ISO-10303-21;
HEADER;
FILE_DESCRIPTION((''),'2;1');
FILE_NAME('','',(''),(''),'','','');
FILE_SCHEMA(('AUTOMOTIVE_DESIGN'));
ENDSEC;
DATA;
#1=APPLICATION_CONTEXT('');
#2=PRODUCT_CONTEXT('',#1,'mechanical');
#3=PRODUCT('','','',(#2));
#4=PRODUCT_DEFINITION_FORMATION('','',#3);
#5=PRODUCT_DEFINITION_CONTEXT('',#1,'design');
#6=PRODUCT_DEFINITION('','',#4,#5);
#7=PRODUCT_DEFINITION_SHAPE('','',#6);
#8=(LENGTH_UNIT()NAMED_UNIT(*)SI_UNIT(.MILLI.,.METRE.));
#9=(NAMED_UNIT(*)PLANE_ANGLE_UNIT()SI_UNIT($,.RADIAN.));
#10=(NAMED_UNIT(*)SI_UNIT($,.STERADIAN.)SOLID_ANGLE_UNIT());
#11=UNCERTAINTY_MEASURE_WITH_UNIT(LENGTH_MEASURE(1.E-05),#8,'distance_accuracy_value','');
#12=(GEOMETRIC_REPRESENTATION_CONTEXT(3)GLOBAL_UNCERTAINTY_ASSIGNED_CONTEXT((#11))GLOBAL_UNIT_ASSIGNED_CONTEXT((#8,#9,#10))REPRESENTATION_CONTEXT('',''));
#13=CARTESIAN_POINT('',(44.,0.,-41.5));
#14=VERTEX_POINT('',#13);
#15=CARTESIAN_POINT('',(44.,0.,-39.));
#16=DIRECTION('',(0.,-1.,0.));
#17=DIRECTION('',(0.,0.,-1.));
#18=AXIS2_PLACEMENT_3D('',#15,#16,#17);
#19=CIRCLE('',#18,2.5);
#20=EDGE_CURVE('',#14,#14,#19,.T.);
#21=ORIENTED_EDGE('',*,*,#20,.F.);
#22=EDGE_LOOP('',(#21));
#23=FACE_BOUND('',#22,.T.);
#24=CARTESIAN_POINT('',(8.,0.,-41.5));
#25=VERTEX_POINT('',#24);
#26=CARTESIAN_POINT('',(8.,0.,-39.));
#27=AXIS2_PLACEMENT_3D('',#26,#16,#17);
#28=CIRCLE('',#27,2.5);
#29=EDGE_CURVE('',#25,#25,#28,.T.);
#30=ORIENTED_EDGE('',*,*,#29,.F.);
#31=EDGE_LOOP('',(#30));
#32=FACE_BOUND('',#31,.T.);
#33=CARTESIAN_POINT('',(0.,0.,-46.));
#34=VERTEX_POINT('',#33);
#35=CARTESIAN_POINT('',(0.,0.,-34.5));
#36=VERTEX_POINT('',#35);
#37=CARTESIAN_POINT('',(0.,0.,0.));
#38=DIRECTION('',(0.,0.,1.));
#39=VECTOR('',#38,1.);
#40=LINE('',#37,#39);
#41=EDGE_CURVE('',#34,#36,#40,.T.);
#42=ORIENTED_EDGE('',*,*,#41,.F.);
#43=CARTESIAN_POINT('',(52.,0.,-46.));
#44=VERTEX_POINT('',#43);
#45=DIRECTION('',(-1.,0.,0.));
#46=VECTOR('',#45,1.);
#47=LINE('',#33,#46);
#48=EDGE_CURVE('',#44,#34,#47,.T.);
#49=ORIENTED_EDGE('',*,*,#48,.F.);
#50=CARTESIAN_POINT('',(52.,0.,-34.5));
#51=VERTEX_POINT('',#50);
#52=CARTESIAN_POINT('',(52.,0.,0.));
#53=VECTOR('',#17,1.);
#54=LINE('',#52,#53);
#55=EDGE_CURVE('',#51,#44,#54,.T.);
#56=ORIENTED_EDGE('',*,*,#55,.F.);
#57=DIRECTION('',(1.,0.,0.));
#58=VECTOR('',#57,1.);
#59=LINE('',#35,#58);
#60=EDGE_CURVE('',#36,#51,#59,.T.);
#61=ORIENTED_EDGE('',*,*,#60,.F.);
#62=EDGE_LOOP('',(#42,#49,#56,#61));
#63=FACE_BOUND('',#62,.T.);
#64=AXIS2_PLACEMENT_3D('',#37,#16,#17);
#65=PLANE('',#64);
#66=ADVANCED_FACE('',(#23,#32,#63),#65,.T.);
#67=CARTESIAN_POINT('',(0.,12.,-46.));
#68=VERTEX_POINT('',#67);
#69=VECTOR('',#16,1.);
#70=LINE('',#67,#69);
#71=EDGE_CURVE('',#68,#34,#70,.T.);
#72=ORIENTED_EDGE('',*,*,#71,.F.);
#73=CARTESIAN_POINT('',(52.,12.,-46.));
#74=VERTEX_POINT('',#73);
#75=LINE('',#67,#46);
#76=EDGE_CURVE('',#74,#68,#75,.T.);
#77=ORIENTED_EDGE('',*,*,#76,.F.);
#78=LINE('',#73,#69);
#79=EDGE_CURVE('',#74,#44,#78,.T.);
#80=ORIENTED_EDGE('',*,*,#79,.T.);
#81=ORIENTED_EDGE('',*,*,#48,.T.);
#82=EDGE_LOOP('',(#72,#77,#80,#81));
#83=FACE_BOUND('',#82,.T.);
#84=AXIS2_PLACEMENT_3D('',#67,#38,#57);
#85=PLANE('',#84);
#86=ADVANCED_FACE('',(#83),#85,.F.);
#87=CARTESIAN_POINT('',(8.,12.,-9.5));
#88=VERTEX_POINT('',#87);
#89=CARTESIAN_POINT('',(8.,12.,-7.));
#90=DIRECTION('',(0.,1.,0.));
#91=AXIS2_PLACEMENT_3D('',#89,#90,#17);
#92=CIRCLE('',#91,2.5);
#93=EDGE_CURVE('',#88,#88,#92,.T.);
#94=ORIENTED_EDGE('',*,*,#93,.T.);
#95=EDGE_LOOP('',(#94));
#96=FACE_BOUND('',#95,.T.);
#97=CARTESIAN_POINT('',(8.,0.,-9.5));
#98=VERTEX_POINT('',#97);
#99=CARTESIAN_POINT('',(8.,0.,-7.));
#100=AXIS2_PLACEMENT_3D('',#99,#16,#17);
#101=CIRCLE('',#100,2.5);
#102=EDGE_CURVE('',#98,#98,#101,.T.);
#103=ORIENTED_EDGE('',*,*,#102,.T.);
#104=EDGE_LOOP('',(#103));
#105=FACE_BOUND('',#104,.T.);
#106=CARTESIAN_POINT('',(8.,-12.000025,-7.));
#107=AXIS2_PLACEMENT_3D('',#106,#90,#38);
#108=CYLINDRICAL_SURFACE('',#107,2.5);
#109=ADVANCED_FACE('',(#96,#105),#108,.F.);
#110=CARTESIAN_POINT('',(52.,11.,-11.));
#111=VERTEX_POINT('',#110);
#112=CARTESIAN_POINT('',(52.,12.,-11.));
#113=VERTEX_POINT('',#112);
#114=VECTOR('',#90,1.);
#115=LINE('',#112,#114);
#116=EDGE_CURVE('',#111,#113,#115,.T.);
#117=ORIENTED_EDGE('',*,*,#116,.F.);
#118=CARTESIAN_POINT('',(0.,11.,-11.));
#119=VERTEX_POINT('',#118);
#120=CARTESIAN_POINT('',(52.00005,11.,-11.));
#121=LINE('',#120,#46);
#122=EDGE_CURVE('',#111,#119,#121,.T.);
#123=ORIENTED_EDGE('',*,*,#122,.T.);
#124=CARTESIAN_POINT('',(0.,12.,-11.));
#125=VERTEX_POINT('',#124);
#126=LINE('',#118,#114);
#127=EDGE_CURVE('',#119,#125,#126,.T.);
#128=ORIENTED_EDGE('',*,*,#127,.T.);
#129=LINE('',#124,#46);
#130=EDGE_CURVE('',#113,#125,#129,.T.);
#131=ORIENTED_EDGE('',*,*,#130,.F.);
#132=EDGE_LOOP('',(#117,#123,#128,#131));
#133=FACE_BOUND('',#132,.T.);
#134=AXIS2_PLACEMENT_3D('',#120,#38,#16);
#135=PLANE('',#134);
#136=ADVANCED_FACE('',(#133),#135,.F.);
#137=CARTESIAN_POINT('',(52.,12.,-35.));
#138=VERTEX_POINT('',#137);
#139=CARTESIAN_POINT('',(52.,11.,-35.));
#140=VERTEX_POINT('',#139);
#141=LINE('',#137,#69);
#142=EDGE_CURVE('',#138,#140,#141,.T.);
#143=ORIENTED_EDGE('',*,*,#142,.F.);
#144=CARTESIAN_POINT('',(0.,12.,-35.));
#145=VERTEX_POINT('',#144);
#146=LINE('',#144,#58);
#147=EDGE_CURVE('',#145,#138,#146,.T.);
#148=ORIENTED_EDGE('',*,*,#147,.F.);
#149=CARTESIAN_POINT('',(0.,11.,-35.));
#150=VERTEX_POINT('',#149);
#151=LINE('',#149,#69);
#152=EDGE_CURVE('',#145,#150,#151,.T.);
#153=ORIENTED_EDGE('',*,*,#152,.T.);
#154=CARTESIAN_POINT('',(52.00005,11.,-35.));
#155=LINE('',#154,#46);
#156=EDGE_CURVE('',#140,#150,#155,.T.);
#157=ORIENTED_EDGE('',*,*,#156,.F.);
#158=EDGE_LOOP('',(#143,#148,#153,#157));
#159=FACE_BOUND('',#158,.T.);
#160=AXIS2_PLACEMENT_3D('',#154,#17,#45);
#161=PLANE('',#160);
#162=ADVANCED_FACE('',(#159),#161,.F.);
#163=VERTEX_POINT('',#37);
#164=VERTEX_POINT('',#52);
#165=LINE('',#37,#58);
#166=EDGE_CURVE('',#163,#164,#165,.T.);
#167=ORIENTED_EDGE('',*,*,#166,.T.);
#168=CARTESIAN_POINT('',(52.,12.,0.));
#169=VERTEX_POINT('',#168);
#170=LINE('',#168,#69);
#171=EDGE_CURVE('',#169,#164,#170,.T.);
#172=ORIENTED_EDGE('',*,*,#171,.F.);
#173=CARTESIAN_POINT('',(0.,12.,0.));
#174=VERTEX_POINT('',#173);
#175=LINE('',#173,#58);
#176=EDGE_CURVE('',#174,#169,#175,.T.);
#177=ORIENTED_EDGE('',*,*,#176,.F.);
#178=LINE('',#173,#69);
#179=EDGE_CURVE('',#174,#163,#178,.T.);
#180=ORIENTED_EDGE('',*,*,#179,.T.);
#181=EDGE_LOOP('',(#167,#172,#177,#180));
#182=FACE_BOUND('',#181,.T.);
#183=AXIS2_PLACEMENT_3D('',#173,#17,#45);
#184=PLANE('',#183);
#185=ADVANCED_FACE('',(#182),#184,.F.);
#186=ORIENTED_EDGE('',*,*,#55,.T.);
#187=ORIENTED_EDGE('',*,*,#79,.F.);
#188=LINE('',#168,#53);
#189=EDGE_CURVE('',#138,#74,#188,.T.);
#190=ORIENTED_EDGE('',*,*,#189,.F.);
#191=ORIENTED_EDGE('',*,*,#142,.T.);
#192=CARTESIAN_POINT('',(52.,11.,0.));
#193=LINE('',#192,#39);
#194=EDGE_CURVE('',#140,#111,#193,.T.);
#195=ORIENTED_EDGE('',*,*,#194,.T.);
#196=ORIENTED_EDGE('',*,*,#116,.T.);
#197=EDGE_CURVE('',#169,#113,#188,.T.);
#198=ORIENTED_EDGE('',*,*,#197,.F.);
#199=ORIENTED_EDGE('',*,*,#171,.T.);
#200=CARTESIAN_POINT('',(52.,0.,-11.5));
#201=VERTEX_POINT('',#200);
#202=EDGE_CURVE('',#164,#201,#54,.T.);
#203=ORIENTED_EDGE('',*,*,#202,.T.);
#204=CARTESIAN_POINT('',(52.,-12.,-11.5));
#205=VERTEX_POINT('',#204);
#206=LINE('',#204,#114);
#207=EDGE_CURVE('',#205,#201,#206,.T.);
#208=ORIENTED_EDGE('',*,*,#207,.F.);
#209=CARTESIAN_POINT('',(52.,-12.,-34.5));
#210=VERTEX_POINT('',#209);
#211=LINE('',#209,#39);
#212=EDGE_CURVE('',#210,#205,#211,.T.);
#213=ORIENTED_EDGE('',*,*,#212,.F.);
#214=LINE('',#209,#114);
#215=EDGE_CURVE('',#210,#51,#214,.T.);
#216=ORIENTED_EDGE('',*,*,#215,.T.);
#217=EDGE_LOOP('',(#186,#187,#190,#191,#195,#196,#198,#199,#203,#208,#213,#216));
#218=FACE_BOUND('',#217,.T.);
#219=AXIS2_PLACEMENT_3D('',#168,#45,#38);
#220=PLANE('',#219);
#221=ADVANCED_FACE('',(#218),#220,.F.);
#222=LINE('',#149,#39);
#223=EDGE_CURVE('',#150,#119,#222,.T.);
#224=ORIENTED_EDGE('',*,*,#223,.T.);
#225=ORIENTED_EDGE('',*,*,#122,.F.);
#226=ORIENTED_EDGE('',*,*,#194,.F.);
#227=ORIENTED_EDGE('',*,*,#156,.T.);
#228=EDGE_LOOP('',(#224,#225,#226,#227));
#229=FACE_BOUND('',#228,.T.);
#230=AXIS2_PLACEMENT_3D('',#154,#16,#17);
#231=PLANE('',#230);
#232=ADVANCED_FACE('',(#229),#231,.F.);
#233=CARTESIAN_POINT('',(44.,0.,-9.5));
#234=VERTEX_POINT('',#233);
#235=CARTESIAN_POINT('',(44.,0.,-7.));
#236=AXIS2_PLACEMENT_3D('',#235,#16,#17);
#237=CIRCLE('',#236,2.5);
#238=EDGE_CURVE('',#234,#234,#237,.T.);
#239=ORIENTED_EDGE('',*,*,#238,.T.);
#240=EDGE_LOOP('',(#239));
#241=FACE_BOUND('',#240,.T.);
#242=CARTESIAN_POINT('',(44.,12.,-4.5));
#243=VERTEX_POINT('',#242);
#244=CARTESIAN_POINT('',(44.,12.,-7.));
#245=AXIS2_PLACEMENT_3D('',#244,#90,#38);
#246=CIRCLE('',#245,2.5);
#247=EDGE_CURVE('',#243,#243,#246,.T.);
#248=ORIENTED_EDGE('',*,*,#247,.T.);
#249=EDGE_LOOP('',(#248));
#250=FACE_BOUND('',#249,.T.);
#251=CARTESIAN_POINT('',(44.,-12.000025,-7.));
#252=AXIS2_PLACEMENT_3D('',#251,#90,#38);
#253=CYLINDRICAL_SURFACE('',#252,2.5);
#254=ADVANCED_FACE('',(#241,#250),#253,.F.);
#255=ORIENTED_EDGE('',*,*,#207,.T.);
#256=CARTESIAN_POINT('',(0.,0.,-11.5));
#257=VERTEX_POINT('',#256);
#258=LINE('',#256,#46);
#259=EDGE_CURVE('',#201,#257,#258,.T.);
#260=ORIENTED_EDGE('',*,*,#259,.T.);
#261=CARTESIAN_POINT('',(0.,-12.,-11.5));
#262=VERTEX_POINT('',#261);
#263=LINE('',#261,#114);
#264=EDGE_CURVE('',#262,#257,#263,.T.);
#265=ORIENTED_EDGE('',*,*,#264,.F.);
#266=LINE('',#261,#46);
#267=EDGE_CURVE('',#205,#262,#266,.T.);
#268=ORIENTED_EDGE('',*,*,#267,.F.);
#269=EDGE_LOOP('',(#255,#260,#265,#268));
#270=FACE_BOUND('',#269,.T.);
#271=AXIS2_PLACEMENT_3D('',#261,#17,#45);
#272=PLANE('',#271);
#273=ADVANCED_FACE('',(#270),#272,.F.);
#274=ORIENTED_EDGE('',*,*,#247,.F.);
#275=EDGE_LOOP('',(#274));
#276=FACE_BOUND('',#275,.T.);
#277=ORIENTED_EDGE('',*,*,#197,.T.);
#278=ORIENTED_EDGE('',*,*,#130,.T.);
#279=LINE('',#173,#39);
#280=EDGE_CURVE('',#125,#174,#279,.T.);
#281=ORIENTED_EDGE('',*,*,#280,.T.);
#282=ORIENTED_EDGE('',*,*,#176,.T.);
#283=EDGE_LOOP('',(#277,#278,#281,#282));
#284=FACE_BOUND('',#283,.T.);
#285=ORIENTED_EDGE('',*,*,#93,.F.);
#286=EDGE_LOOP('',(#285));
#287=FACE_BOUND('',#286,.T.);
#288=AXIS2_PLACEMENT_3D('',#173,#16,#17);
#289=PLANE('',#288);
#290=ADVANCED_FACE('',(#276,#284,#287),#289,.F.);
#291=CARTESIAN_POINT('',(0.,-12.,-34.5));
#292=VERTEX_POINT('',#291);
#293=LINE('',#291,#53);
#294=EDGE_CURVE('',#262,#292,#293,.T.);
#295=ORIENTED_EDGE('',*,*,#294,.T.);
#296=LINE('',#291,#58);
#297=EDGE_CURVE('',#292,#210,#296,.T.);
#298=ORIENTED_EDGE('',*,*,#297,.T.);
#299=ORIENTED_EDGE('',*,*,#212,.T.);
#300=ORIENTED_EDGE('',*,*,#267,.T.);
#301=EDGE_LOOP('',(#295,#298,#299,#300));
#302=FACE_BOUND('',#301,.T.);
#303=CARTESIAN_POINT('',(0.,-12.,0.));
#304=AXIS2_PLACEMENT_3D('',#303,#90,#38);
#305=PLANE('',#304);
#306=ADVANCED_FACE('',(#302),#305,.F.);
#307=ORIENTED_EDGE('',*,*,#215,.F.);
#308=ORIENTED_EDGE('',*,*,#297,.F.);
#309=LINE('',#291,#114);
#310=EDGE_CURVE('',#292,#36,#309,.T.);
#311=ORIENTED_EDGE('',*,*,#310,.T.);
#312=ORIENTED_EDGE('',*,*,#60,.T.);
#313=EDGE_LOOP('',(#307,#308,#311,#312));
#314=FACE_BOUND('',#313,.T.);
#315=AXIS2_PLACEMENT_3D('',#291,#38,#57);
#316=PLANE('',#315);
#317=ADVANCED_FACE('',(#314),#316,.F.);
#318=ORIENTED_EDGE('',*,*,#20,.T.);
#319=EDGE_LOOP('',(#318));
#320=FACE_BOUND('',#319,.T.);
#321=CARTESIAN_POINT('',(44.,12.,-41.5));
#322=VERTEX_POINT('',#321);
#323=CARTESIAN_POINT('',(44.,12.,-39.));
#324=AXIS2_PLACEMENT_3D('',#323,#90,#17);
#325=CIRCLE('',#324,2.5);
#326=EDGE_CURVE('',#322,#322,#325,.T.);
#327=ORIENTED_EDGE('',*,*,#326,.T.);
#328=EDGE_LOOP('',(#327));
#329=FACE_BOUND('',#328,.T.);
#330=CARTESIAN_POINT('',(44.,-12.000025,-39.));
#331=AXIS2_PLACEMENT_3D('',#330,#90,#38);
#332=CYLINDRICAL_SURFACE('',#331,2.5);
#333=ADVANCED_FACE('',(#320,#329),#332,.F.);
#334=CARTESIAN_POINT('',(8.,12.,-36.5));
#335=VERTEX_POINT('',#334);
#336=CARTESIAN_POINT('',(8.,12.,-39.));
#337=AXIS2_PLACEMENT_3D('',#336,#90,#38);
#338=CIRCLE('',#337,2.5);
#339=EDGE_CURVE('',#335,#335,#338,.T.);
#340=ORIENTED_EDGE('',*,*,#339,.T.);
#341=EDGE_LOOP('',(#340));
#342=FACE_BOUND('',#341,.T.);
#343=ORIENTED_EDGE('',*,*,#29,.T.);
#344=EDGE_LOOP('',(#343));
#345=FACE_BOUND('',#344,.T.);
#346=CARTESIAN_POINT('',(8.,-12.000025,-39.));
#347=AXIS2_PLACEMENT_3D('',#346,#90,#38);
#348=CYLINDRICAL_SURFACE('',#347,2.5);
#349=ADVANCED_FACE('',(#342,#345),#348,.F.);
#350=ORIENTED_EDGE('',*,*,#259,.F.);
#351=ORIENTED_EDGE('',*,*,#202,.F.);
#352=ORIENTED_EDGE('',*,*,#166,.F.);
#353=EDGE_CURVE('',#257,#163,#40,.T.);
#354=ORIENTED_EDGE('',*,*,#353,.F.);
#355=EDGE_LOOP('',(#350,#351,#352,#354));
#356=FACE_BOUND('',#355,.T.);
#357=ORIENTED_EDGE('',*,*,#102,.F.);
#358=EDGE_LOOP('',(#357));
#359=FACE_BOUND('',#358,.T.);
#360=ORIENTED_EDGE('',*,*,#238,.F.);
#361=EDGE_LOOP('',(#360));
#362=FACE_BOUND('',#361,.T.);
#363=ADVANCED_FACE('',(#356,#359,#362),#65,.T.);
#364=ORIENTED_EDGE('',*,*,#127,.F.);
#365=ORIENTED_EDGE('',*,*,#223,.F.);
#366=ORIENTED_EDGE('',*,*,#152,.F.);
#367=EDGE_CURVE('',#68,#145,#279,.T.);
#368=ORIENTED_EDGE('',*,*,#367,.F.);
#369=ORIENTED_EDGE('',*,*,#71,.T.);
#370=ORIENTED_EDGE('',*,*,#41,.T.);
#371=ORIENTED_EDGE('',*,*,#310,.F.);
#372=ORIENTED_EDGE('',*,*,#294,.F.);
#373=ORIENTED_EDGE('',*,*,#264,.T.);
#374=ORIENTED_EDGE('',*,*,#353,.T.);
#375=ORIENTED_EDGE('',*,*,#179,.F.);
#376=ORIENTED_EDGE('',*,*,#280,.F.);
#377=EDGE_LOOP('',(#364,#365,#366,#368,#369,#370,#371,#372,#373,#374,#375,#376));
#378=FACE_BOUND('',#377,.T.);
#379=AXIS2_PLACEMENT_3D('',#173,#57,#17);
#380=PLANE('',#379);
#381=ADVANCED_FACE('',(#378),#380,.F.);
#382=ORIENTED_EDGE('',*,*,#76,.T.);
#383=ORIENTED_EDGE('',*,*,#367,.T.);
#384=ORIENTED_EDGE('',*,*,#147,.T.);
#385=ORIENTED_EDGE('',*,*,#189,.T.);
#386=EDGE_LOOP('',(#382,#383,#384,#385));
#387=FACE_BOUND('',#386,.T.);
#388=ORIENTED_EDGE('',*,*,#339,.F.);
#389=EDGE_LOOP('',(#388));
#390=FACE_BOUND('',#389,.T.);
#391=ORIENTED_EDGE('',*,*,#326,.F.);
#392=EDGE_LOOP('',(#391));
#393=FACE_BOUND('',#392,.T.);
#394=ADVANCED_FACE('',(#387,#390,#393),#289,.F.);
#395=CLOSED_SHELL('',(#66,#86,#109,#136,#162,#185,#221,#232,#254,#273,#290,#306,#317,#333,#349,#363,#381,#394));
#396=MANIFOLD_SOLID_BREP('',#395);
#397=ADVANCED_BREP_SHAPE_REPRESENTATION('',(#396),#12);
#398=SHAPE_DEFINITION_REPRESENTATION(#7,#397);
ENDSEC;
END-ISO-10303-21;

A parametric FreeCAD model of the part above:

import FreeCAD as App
import Part
import Sketcher
from FreeCAD import Vector
Q = App.Units.Quantity

doc = App.newDocument("Part")
body = doc.addObject("PartDesign::Body", "Body")

# Sketch on XZ plane
sketch1 = body.newObject("Sketcher::SketchObject", "Sketch")
sketch1.AttachmentSupport = (doc.getObject("XZ_Plane"), [""])
sketch1.MapMode = "FlatFace"
sketch1.addGeometry(Part.LineSegment(Vector(0, -46, 0), Vector(0, 0, 0)), False)
sketch1.addGeometry(Part.LineSegment(Vector(0, 0, 0), Vector(52, 0, 0)), False)
sketch1.addGeometry(Part.LineSegment(Vector(52, 0, 0), Vector(52, -46, 0)), False)
sketch1.addGeometry(Part.LineSegment(Vector(52, -46, 0), Vector(0, -46, 0)), False)
sketch1.addConstraint(Sketcher.Constraint("Coincident", 0, 2, 1, 1))
sketch1.addConstraint(Sketcher.Constraint("Coincident", 1, 2, 2, 1))
sketch1.addConstraint(Sketcher.Constraint("Coincident", 2, 2, 3, 1))
sketch1.addConstraint(Sketcher.Constraint("Coincident", 3, 2, 0, 1))
sketch1.addConstraint(Sketcher.Constraint("Vertical", 0))
sketch1.addConstraint(Sketcher.Constraint("Horizontal", 1))
sketch1.addConstraint(Sketcher.Constraint("Vertical", 2))
sketch1.addConstraint(Sketcher.Constraint("Horizontal", 3))
sketch1.addConstraint(Sketcher.Constraint("Coincident", 0, 2, -1, 1))
sketch1.addConstraint(Sketcher.Constraint("DistanceX", 1, 1, 1, 2, Q("52 mm")))
sketch1.addConstraint(Sketcher.Constraint("DistanceY", 0, 1, 0, 2, Q("46 mm")))
pad1 = body.newObject("PartDesign::Pad", "Pad")
pad1.Profile = sketch1
pad1.Length = 12
pad1.Reversed = True

# Sketch on XZ plane
sketch2 = body.newObject("Sketcher::SketchObject", "Sketch001")
sketch2.AttachmentSupport = (doc.getObject("XZ_Plane"), [""])
sketch2.MapMode = "FlatFace"
sketch2.addGeometry(Part.LineSegment(Vector(0, -12, 0), Vector(0, -34, 0)), False)
sketch2.addGeometry(Part.LineSegment(Vector(0, -34, 0), Vector(52, -34, 0)), False)
sketch2.addGeometry(Part.LineSegment(Vector(52, -34, 0), Vector(52, -12, 0)), False)
sketch2.addGeometry(Part.LineSegment(Vector(52, -12, 0), Vector(0, -12, 0)), False)
sketch2.addConstraint(Sketcher.Constraint("Coincident", 0, 2, 1, 1))
sketch2.addConstraint(Sketcher.Constraint("Coincident", 1, 2, 2, 1))
sketch2.addConstraint(Sketcher.Constraint("Coincident", 2, 2, 3, 1))
sketch2.addConstraint(Sketcher.Constraint("Coincident", 3, 2, 0, 1))
sketch2.addConstraint(Sketcher.Constraint("Vertical", 0))
sketch2.addConstraint(Sketcher.Constraint("Horizontal", 1))
sketch2.addConstraint(Sketcher.Constraint("Vertical", 2))
sketch2.addConstraint(Sketcher.Constraint("Horizontal", 3))
sketch2.addConstraint(Sketcher.Constraint("PointOnObject", 0, 2, -2))
sketch2.addConstraint(Sketcher.Constraint("DistanceX", 1, 1, 1, 2, Q("52 mm")))
sketch2.addConstraint(Sketcher.Constraint("DistanceY", 0, 2, 0, 1, Q("23 mm")))
sketch2.addConstraint(Sketcher.Constraint("DistanceY", 0, 2, -1, 1, Q("34.5 mm")))
pad2 = body.newObject("PartDesign::Pad", "Pad001")
pad2.Profile = sketch2
pad2.Length = 12

# Sketch on XZ plane
sketch3 = body.newObject("Sketcher::SketchObject", "Sketch002")
sketch3.AttachmentSupport = (doc.getObject("XZ_Plane"), [""])
sketch3.MapMode = "FlatFace"
sketch3.AttachmentOffset = App.Placement(Vector(0, 0, -12), App.Rotation())
sketch3.addGeometry(Part.Circle(Vector(8, -39, 0), Vector(0, 0, 1), 2.5), False)
sketch3.addGeometry(Part.Circle(Vector(8, -7, 0), Vector(0, 0, 1), 2.5), False)
sketch3.addGeometry(Part.Circle(Vector(44, -7, 0), Vector(0, 0, 1), 2.5), False)
sketch3.addGeometry(Part.Circle(Vector(44, -39, 0), Vector(0, 0, 1), 2.5), False)
sketch3.addConstraint(Sketcher.Constraint("Equal", 0, 1))
sketch3.addConstraint(Sketcher.Constraint("Equal", 1, 2))
sketch3.addConstraint(Sketcher.Constraint("Equal", 2, 3))
sketch3.addConstraint(Sketcher.Constraint("Horizontal", 1, 3, 2, 3))
sketch3.addConstraint(Sketcher.Constraint("Horizontal", 0, 3, 3, 3))
sketch3.addConstraint(Sketcher.Constraint("Vertical", 0, 3, 1, 3))
sketch3.addConstraint(Sketcher.Constraint("Vertical", 2, 3, 3, 3))
sketch3.addConstraint(Sketcher.Constraint("Diameter", 0, Q("5 mm")))
sketch3.addConstraint(Sketcher.Constraint("DistanceX", -1, 1, 0, 3, Q("8 mm")))
sketch3.addConstraint(Sketcher.Constraint("DistanceY", 0, 3, -1, 1, Q("39 mm")))
sketch3.addConstraint(Sketcher.Constraint("DistanceY", 1, 3, -1, 1, Q("7 mm")))
sketch3.addConstraint(Sketcher.Constraint("DistanceX", -1, 1, 2, 3, Q("44 mm")))
pocket1 = body.newObject("PartDesign::Pocket", "Pocket")
pocket1.Profile = sketch3
pocket1.Type = "ThroughAll"
pocket1.Reversed = True

# Sketch on YZ plane
sketch4 = body.newObject("Sketcher::SketchObject", "Sketch003")
sketch4.AttachmentSupport = (doc.getObject("YZ_Plane"), [""])
sketch4.MapMode = "FlatFace"
sketch4.addGeometry(Part.LineSegment(Vector(12, -35, 0), Vector(11, -35, 0)), False)
sketch4.addGeometry(Part.LineSegment(Vector(11, -35, 0), Vector(11, -11, 0)), False)
sketch4.addGeometry(Part.LineSegment(Vector(11, -11, 0), Vector(12, -11, 0)), False)
sketch4.addGeometry(Part.LineSegment(Vector(12, -11, 0), Vector(12, -35, 0)), False)
sketch4.addConstraint(Sketcher.Constraint("Coincident", 0, 2, 1, 1))
sketch4.addConstraint(Sketcher.Constraint("Coincident", 1, 2, 2, 1))
sketch4.addConstraint(Sketcher.Constraint("Coincident", 2, 2, 3, 1))
sketch4.addConstraint(Sketcher.Constraint("Coincident", 3, 2, 0, 1))
sketch4.addConstraint(Sketcher.Constraint("Horizontal", 0))
sketch4.addConstraint(Sketcher.Constraint("Vertical", 1))
sketch4.addConstraint(Sketcher.Constraint("Horizontal", 2))
sketch4.addConstraint(Sketcher.Constraint("Vertical", 3))
sketch4.addConstraint(Sketcher.Constraint("DistanceX", 0, 2, 0, 1, Q("1 mm")))
sketch4.addConstraint(Sketcher.Constraint("DistanceY", 1, 1, 1, 2, Q("24 mm")))
sketch4.addConstraint(Sketcher.Constraint("DistanceX", -1, 1, 0, 2, Q("11 mm")))
sketch4.addConstraint(Sketcher.Constraint("DistanceY", 0, 2, -1, 1, Q("35 mm")))
pocket2 = body.newObject("PartDesign::Pocket", "Pocket001")
pocket2.Profile = sketch4
pocket2.Type = "ThroughAll"
pocket2.Reversed = True

doc.recompute()
